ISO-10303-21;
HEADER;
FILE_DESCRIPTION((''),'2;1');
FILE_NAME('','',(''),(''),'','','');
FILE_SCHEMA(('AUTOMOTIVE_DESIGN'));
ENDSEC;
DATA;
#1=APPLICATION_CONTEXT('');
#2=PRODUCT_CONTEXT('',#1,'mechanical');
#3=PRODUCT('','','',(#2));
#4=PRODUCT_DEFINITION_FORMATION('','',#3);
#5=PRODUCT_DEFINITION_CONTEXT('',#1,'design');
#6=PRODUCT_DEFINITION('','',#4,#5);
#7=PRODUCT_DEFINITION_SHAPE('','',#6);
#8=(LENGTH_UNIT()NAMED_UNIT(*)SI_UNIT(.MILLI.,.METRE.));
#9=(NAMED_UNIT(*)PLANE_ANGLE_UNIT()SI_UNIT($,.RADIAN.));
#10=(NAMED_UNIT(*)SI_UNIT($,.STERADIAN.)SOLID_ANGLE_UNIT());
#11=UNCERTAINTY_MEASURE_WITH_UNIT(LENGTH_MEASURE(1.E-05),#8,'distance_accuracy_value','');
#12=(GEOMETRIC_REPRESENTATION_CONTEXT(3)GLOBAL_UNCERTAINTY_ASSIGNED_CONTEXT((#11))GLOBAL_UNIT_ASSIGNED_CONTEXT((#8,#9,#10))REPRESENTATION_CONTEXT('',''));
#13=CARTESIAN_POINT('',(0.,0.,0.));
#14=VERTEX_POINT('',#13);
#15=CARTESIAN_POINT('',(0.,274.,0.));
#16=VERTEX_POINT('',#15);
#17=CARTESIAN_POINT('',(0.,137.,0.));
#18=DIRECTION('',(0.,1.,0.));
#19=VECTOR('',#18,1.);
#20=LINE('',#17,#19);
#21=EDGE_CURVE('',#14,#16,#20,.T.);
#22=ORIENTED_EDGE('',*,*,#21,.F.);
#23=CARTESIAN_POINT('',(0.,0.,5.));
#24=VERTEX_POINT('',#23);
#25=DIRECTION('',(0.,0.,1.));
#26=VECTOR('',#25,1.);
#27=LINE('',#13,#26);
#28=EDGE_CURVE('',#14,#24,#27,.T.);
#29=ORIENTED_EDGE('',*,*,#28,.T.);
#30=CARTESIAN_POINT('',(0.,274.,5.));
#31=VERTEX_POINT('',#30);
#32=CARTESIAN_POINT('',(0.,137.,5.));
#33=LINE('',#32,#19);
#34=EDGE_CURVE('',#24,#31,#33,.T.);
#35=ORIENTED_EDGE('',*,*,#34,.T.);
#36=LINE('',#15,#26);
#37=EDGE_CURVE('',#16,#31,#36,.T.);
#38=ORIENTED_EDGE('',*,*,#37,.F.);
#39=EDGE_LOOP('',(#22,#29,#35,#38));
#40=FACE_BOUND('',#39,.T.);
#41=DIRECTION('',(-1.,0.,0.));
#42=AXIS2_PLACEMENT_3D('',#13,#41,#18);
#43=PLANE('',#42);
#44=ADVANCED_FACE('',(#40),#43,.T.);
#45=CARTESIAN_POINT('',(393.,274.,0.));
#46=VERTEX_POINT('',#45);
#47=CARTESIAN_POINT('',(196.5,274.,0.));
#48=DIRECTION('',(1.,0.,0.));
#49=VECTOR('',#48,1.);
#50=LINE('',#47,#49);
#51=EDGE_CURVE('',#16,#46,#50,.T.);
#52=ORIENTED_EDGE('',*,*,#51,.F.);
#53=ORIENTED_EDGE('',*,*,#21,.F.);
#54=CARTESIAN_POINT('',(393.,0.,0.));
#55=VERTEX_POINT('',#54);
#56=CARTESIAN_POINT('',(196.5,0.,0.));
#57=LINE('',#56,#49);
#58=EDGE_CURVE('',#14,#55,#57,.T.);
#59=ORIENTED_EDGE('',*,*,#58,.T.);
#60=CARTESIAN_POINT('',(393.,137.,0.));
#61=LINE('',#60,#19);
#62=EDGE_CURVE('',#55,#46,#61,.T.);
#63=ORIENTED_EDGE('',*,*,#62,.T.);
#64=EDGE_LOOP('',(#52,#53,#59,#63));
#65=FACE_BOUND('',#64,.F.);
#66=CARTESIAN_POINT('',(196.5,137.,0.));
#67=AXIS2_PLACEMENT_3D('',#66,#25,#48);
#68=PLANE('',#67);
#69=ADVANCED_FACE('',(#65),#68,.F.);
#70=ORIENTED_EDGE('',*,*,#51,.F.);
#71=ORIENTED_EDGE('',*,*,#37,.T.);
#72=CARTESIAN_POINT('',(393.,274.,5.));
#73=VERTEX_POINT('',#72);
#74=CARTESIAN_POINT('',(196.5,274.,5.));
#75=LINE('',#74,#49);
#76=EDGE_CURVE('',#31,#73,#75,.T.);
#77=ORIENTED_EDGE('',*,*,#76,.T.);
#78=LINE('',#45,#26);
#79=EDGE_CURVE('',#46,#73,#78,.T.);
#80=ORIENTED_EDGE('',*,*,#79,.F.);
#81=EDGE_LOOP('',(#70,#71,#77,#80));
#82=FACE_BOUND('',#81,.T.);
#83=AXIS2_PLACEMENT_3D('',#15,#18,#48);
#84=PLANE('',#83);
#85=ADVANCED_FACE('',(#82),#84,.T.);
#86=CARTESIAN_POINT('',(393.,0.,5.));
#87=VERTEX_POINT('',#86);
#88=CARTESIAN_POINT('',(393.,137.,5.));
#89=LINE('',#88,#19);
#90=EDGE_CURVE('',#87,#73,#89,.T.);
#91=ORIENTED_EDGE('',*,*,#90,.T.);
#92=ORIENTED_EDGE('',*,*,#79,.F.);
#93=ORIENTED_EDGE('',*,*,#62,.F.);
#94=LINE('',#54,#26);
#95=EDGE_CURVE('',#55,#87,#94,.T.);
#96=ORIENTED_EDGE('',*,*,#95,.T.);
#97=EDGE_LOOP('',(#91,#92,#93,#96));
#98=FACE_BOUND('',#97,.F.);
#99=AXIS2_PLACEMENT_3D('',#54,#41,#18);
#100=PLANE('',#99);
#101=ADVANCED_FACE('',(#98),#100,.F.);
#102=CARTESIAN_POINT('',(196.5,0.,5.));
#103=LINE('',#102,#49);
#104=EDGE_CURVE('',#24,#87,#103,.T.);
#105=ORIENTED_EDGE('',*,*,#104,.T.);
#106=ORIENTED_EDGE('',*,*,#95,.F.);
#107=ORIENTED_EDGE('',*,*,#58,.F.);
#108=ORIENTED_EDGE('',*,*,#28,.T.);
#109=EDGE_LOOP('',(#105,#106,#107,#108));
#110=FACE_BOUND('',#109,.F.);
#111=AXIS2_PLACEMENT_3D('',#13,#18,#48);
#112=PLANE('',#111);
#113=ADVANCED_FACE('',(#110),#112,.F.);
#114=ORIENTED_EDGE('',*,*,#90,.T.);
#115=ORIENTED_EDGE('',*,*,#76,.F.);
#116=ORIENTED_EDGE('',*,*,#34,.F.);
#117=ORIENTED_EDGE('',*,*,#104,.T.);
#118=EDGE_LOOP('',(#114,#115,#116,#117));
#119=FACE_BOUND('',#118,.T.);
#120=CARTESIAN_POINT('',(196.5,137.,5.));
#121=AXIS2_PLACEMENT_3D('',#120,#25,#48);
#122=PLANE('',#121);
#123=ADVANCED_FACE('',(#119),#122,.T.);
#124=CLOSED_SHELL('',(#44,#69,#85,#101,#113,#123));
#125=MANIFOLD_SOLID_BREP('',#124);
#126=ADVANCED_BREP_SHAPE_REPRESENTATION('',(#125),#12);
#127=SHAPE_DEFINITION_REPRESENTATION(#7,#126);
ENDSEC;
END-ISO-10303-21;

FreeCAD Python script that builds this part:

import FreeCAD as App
import Part
import Sketcher
from FreeCAD import Vector


def add_polygon(sketch, points):
    """Adds a closed chain of lines whose ends are joined by coincident constraints."""
    first, n = sketch.GeometryCount, len(points)
    for a, b in zip(points, points[1:] + points[:1]):
        sketch.addGeometry(Part.LineSegment(App.Vector(*a, 0), App.Vector(*b, 0)), False)
    for i in range(n):
        sketch.addConstraint(Sketcher.Constraint("Coincident", first + i, 2, first + (i + 1) % n, 1))

doc = App.newDocument("Part")
body = doc.addObject("PartDesign::Body", "Body")

# Sketch on XY plane
sketch1 = body.newObject("Sketcher::SketchObject", "Sketch")
sketch1.AttachmentSupport = (doc.getObject("XY_Plane"), [""])
sketch1.MapMode = "FlatFace"
add_polygon(sketch1, [(0, 274), (0, 0), (393, 0), (393, 274)])  # lines 0-3
sketch1.addConstraint(Sketcher.Constraint("Vertical", 0))
sketch1.addConstraint(Sketcher.Constraint("Horizontal", 1))
sketch1.addConstraint(Sketcher.Constraint("Vertical", 2))
sketch1.addConstraint(Sketcher.Constraint("Horizontal", 3))
sketch1.addConstraint(Sketcher.Constraint("Coincident", 0, 2, -1, 1))
sketch1.addConstraint(Sketcher.Constraint("DistanceX", 1, 1, 1, 2, 393.0))
sketch1.addConstraint(Sketcher.Constraint("DistanceY", 0, 2, 0, 1, 274.0))
pad1 = body.newObject("PartDesign::Pad", "Pad")
pad1.Profile = sketch1
pad1.Length = 5

doc.recompute()
